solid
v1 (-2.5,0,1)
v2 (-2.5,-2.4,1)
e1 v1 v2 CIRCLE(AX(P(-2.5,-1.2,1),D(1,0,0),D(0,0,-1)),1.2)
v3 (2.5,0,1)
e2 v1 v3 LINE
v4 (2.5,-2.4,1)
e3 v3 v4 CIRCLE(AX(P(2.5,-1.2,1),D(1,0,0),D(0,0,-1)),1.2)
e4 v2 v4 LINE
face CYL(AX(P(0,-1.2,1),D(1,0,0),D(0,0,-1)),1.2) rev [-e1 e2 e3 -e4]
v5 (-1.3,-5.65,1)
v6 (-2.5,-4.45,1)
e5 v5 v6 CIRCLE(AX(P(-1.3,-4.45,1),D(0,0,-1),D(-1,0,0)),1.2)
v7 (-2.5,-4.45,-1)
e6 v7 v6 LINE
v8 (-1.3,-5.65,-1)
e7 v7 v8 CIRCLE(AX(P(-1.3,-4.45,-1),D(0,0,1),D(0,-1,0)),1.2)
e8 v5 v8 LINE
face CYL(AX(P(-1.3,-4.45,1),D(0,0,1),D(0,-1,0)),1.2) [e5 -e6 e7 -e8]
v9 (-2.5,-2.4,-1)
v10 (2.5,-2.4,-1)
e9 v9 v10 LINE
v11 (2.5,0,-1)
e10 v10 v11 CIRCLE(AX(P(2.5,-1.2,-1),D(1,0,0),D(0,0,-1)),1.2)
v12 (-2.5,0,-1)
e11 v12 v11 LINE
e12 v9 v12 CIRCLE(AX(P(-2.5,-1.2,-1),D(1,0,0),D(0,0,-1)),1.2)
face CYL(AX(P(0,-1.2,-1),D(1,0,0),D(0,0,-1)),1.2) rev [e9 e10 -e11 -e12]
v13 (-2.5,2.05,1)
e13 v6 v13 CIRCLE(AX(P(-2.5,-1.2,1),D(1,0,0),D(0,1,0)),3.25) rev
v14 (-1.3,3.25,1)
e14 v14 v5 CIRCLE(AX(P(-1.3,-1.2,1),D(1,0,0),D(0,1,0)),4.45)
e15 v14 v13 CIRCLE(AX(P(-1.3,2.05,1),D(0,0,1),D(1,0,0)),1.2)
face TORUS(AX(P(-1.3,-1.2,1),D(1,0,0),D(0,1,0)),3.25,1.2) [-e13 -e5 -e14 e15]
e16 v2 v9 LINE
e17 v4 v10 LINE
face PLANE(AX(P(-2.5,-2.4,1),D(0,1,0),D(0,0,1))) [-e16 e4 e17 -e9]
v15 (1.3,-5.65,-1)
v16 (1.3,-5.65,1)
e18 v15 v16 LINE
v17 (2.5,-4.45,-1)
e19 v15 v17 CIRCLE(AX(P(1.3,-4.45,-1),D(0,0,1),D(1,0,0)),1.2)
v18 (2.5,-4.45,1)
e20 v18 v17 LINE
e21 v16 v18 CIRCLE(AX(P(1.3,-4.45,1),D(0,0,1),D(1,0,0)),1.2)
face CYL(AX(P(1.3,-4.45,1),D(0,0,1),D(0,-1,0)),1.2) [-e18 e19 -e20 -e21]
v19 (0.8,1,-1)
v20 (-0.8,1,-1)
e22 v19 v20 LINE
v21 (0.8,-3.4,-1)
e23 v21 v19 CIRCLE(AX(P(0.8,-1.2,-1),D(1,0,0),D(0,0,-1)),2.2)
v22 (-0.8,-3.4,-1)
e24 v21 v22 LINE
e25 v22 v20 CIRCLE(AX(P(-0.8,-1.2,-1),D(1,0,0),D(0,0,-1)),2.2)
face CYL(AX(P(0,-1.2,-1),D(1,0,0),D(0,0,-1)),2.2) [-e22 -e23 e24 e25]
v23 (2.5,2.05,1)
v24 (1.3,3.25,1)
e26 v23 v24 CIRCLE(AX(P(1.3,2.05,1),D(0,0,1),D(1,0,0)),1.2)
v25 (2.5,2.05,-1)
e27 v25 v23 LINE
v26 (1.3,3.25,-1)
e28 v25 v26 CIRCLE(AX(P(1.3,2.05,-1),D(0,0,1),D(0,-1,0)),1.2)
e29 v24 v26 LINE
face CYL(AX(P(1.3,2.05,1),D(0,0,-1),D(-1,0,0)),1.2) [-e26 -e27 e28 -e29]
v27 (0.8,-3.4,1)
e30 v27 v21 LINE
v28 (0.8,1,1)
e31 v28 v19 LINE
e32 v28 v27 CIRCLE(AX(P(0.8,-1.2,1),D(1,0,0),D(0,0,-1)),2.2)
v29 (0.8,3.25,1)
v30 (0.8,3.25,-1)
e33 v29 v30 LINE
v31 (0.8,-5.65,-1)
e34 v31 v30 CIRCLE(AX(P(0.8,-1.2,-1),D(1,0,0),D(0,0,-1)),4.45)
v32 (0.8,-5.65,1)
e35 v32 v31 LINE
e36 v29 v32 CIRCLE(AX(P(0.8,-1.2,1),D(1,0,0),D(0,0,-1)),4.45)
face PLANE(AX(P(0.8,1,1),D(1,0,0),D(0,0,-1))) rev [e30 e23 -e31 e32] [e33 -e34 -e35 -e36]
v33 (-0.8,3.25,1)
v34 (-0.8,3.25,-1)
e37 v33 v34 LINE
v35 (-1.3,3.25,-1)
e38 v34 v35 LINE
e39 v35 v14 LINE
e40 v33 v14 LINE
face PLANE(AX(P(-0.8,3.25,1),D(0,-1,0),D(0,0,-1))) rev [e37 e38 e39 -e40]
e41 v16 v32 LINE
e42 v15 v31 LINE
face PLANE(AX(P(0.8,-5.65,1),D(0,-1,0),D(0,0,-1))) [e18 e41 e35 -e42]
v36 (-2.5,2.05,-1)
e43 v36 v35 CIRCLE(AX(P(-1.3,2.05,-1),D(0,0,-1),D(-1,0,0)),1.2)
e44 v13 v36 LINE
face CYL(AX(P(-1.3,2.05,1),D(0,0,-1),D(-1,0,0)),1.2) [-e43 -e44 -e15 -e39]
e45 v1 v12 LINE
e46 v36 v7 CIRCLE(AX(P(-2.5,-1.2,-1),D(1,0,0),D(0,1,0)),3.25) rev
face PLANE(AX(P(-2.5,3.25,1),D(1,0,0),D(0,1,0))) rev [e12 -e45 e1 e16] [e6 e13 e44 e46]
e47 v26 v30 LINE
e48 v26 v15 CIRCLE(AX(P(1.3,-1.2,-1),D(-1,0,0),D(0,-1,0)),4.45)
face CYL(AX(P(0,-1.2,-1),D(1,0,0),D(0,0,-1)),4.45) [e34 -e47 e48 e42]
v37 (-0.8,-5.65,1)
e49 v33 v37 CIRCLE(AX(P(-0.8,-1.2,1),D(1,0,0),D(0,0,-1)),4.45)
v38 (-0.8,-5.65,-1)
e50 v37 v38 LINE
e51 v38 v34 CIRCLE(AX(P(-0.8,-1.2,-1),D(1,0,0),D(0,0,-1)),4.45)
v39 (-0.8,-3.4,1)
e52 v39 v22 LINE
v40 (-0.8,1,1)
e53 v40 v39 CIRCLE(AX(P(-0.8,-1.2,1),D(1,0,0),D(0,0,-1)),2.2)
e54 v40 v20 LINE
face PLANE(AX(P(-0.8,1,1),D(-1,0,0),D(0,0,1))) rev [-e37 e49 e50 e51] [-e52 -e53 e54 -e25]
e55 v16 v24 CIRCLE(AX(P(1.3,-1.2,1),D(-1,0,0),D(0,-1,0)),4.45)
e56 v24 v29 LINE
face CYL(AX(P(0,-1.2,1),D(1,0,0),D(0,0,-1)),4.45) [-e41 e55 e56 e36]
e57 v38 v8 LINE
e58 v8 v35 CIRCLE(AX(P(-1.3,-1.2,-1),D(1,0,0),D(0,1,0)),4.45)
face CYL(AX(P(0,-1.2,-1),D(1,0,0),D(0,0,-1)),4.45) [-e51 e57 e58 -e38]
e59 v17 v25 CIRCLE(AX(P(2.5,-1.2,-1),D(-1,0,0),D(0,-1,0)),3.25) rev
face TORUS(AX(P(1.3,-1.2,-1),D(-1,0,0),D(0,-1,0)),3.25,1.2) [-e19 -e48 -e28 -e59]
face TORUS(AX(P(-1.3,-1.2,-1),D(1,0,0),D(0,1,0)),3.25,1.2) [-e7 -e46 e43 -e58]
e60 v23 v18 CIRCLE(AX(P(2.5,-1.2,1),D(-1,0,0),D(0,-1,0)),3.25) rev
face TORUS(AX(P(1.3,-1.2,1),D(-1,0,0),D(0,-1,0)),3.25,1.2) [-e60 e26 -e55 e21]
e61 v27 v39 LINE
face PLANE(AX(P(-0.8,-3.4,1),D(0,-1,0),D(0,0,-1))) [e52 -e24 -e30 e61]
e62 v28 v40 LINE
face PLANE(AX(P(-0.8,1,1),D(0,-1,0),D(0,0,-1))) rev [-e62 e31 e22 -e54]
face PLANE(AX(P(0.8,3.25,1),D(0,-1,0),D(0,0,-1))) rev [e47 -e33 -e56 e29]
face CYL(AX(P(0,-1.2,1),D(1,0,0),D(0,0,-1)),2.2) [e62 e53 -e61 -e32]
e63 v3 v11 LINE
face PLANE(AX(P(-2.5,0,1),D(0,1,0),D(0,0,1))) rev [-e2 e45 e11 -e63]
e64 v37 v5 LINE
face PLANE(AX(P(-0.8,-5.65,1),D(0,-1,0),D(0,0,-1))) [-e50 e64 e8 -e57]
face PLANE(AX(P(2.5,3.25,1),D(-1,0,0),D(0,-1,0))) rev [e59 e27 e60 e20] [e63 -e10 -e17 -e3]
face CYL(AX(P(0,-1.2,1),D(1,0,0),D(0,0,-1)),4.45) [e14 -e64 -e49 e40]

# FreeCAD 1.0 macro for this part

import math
import FreeCAD as App
import Part
import Sketcher

V = App.Vector
Q = App.Units.Quantity


def edges_at(feature, points):
    """Names of the edges that pass closest to the given points."""
    edges = feature.Shape.Edges
    near = lambda p: min(range(len(edges)), key=lambda i: edges[i].distToShape(Part.Vertex(*p))[0])
    return sorted({f"Edge{near(p) + 1}" for p in points})

doc = App.newDocument("Part")
body = doc.addObject("PartDesign::Body", "Body")

sketch1 = body.newObject("Sketcher::SketchObject", "Sketch")
sketch1.AttachmentSupport = (doc.getObject("XY_Plane"), [""])
sketch1.MapMode = "FlatFace"
sketch1.addGeometry([
    Part.LineSegment(V(0.8, 1, 0), V(-0.8, 1, 0)),
    Part.LineSegment(V(-0.8, 1, 0), V(-0.8, 3.2, 0)),
    Part.LineSegment(V(-0.8, 3.2, 0), V(-2.5, 3.2, 0)),
    Part.LineSegment(V(-2.5, 3.2, 0), V(-2.5, 0, 0)),
    Part.LineSegment(V(-2.5, 0, 0), V(2.5, 0, 0)),
    Part.LineSegment(V(2.5, 0, 0), V(2.5, 3.2, 0)),
    Part.LineSegment(V(2.5, 3.2, 0), V(0.8, 3.2, 0)),
    Part.LineSegment(V(0.8, 3.2, 0), V(0.8, 1, 0)),
], False)
sketch1.addConstraint([
    Sketcher.Constraint("Coincident", 0, 2, 1, 1),
    Sketcher.Constraint("Coincident", 1, 2, 2, 1),
    Sketcher.Constraint("Coincident", 2, 2, 3, 1),
    Sketcher.Constraint("Coincident", 3, 2, 4, 1),
    Sketcher.Constraint("Coincident", 4, 2, 5, 1),
    Sketcher.Constraint("Coincident", 5, 2, 6, 1),
    Sketcher.Constraint("Coincident", 6, 2, 7, 1),
    Sketcher.Constraint("Coincident", 7, 2, 0, 1),
    Sketcher.Constraint("Horizontal", 0),
    Sketcher.Constraint("Vertical", 1),
    Sketcher.Constraint("Horizontal", 2),
    Sketcher.Constraint("Vertical", 3),
    Sketcher.Constraint("Horizontal", 4),
    Sketcher.Constraint("Vertical", 5),
    Sketcher.Constraint("Horizontal", 6),
    Sketcher.Constraint("Vertical", 7),
    Sketcher.Constraint("Symmetric", 3, 2, 4, 2, -1, 1),
    Sketcher.Constraint("Symmetric", 1, 2, 6, 2, -2),
    Sketcher.Constraint("DistanceX", 4, 1, 4, 2, Q("5 mm")),
    Sketcher.Constraint("DistanceX", 0, 2, 0, 1, Q("1.6 mm")),
    Sketcher.Constraint("DistanceY", -1, 1, 0, 2, Q("1 mm")),
    Sketcher.Constraint("DistanceY", 1, 1, 1, 2, Q("2.25 mm")),
])

sketch2 = body.newObject("Sketcher::SketchObject", "Sketch001")
sketch2.AttachmentSupport = (doc.getObject("YZ_Plane"), [""])
sketch2.MapMode = "FlatFace"
sketch2.addGeometry([
    Part.LineSegment(V(0, 1, 0), V(0, -1, 0)),
    Part.ArcOfCircle(Part.Circle(V(-1.2, -1, 0), V(0, 0, 1), 1.2), math.radians(180), math.radians(360)),
    Part.LineSegment(V(-2.4, -1, 0), V(-2.4, 1, 0)),
    Part.ArcOfCircle(Part.Circle(V(-1.2, 1, 0), V(0, 0, 1), 1.2), math.radians(0), math.radians(180)),
], False)
sketch2.addConstraint([
    Sketcher.Constraint("Tangent", 0, 2, 1, 2),
    Sketcher.Constraint("Tangent", 1, 1, 2, 1),
    Sketcher.Constraint("Tangent", 2, 2, 3, 2),
    Sketcher.Constraint("Tangent", 3, 1, 0, 1),
    Sketcher.Constraint("Vertical", 0),
    Sketcher.Constraint("Vertical", 2),
    Sketcher.Constraint("Symmetric", 0, 2, 3, 1, -1, 1),
    Sketcher.Constraint("Radius", 1, Q("1.2 mm")),
    Sketcher.Constraint("DistanceY", 0, 2, 0, 1, Q("2 mm")),
])
doc.recompute()

additivepipe = body.newObject("PartDesign::AdditivePipe", "AdditivePipe")
additivepipe.Profile = sketch1
additivepipe.Spine = (sketch2, ["Edge1", "Edge2", "Edge3", "Edge4"])
doc.recompute()

fillet = body.newObject("PartDesign::Fillet", "Fillet")
fillet.Base = (additivepipe, edges_at(additivepipe, [
    (2.5, 3.25, 0),
    (-2.5, 3.25, 0),
    (2.5, -1.2, 5.45),
    (-2.5, -1.2, 5.45),
    (2.5, -5.65, 0),
    (-2.5, -5.65, 0),
    (2.5, -1.2, -5.45),
    (-2.5, -1.2, -5.45),
]))
fillet.Radius = 1.2

doc.recompute()
